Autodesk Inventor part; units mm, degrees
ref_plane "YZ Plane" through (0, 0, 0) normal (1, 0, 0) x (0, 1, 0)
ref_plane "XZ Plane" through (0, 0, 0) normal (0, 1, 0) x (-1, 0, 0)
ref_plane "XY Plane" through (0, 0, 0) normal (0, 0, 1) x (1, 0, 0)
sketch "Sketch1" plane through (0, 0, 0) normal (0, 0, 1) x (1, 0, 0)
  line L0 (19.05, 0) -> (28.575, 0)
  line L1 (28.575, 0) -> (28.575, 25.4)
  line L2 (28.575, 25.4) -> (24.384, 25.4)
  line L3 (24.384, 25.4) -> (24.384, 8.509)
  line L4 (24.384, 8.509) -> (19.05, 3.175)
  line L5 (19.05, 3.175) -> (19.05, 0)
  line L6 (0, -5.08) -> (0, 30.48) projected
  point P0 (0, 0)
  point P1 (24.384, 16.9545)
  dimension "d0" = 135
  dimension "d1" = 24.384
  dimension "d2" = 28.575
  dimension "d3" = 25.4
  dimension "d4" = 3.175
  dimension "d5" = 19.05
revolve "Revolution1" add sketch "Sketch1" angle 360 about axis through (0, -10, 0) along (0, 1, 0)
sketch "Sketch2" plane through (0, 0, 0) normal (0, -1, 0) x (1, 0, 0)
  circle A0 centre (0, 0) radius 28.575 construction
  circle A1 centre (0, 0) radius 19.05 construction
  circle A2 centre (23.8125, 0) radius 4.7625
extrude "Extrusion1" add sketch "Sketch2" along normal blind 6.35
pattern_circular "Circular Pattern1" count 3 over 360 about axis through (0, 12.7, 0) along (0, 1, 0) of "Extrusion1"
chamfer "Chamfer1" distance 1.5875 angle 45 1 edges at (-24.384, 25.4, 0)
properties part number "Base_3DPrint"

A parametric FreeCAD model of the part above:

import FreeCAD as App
import Part
import Sketcher
Q = App.Units.Quantity


def edges_at(feature, points):
    """Names of the edges that pass closest to the given points."""
    edges = feature.Shape.Edges
    near = lambda p: min(range(len(edges)), key=lambda i: edges[i].distToShape(Part.Vertex(*p))[0])
    return sorted({f"Edge{near(p) + 1}" for p in points})

doc = App.newDocument("Part")
body = doc.addObject("PartDesign::Body", "Body")

# Sketch on XY plane
sketch1 = doc.addObject("Sketcher::SketchObject", "Sketch")
body.addObject(sketch1)
sketch1.AttachmentSupport = (doc.XY_Plane, [""])
sketch1.MapMode = "FlatFace"
sketch1.addGeometry(Part.LineSegment(App.Vector(19.05, 3.175, 0), App.Vector(19.05, 0, 0)), False)
sketch1.addGeometry(Part.LineSegment(App.Vector(19.05, 0, 0), App.Vector(28.575, 0, 0)), False)
sketch1.addGeometry(Part.LineSegment(App.Vector(28.575, 0, 0), App.Vector(28.575, 25.4, 0)), False)
sketch1.addGeometry(Part.LineSegment(App.Vector(28.575, 25.4, 0), App.Vector(24.384, 25.4, 0)), False)
sketch1.addGeometry(Part.LineSegment(App.Vector(24.384, 25.4, 0), App.Vector(24.384, 8.509, 0)), False)
sketch1.addGeometry(Part.LineSegment(App.Vector(24.384, 8.509, 0), App.Vector(19.05, 3.175, 0)), False)
sketch1.addConstraint(Sketcher.Constraint("Coincident", 0, 2, 1, 1))
sketch1.addConstraint(Sketcher.Constraint("Coincident", 1, 2, 2, 1))
sketch1.addConstraint(Sketcher.Constraint("Coincident", 2, 2, 3, 1))
sketch1.addConstraint(Sketcher.Constraint("Coincident", 3, 2, 4, 1))
sketch1.addConstraint(Sketcher.Constraint("Coincident", 4, 2, 5, 1))
sketch1.addConstraint(Sketcher.Constraint("Coincident", 5, 2, 0, 1))
sketch1.addConstraint(Sketcher.Constraint("Vertical", 0))
sketch1.addConstraint(Sketcher.Constraint("Horizontal", 1))
sketch1.addConstraint(Sketcher.Constraint("Vertical", 2))
sketch1.addConstraint(Sketcher.Constraint("Horizontal", 3))
sketch1.addConstraint(Sketcher.Constraint("Vertical", 4))
sketch1.addConstraint(Sketcher.Constraint("PointOnObject", 0, 2, -1))
sketch1.addConstraint(Sketcher.Constraint("DistanceY", 2, 1, 2, 2, Q("1 in")))
sketch1.addConstraint(Sketcher.Constraint("Angle", 5, Q("-135 deg")))
sketch1.addConstraint(Sketcher.Constraint("DistanceY", 0, 2, 0, 1, Q("0.125 in")))
sketch1.addConstraint(Sketcher.Constraint("DistanceX", -1, 1, 0, 2, Q("0.75 in")))
sketch1.addConstraint(Sketcher.Constraint("DistanceX", -1, 1, 3, 2, Q("0.96 in")))
sketch1.addConstraint(Sketcher.Constraint("DistanceX", -1, 1, 1, 2, Q("1.125 in")))
revolution = doc.addObject("PartDesign::Revolution", "Revolution")
body.addObject(revolution)
revolution.Profile = sketch1
revolution.ReferenceAxis = (sketch1, ["V_Axis"])
revolution.Angle = 360

# Sketch on XZ plane
sketch2 = doc.addObject("Sketcher::SketchObject", "Sketch001")
body.addObject(sketch2)
sketch2.AttachmentSupport = (doc.XZ_Plane, [""])
sketch2.MapMode = "FlatFace"
sketch2.addGeometry(Part.Circle(App.Vector(23.8125, 0, 0), App.Vector(0, 0, 1), 4.7625), False)
sketch2.addConstraint(Sketcher.Constraint("PointOnObject", 0, 3, -1))
sketch2.addConstraint(Sketcher.Constraint("Diameter", 0, Q("0.375 in")))
sketch2.addConstraint(Sketcher.Constraint("DistanceX", -1, 1, 0, 3, Q("0.9375 in")))
pad1 = doc.addObject("PartDesign::Pad", "Pad")
body.addObject(pad1)
pad1.Profile = sketch2
pad1.Length = Q("0.25 in")
doc.recompute()

polarpattern = doc.addObject("PartDesign::PolarPattern", "PolarPattern")
body.addObject(polarpattern)
polarpattern.Originals = [pad1]
polarpattern.Axis = (doc.Y_Axis, [""])
polarpattern.Angle = 360
polarpattern.Occurrences = 3
body.Tip = polarpattern
doc.recompute()

chamfer = doc.addObject("PartDesign::Chamfer", "Chamfer")
body.addObject(chamfer)
chamfer.Base = (polarpattern, edges_at(polarpattern, [(-24.384, 25.4, 0)]))
chamfer.Size = Q("0.0625 in")

doc.recompute()
